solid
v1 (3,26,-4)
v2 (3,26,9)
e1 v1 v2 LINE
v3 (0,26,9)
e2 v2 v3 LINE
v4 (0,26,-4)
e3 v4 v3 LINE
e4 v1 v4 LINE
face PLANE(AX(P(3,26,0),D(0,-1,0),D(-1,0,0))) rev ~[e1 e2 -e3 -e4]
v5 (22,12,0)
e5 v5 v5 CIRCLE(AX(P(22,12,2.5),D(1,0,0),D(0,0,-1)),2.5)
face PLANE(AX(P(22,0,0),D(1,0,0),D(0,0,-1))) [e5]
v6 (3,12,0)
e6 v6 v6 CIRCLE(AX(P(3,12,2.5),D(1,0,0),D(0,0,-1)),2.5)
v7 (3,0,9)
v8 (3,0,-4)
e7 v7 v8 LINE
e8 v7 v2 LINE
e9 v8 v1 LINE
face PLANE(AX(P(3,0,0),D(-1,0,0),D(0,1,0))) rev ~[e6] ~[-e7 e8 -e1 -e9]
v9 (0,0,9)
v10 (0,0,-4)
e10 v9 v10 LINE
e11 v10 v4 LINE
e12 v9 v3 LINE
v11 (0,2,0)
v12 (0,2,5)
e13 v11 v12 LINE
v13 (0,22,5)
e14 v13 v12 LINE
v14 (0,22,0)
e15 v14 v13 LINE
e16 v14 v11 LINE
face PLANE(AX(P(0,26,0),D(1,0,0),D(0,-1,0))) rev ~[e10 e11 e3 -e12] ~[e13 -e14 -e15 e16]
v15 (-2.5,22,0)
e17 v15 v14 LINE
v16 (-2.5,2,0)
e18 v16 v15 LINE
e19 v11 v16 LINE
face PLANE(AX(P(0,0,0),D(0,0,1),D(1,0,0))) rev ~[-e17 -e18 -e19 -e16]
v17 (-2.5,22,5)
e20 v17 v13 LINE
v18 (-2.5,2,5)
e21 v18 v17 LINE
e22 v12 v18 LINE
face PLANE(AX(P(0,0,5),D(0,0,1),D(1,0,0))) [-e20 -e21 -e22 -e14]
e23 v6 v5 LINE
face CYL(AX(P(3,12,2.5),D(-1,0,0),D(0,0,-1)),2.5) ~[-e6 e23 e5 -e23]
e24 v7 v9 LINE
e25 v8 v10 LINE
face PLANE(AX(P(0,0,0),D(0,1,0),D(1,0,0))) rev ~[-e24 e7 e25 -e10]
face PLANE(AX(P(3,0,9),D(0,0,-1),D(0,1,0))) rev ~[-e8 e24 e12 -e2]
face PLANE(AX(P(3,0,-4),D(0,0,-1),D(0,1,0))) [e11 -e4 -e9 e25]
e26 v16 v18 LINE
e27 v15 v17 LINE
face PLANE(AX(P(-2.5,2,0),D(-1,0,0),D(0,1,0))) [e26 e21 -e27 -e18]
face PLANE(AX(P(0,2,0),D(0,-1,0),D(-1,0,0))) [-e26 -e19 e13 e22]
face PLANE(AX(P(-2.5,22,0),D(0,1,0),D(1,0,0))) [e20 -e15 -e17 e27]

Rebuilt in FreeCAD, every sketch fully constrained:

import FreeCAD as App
import Part
import Sketcher

V = App.Vector
Q = App.Units.Quantity


def add_polygon(sketch, points):
    """Adds a closed chain of lines whose ends are joined by coincident constraints."""
    first, n = sketch.GeometryCount, len(points)
    for a, b in zip(points, points[1:] + points[:1]):
        sketch.addGeometry(Part.LineSegment(App.Vector(*a, 0), App.Vector(*b, 0)), False)
    for i in range(n):
        sketch.addConstraint(Sketcher.Constraint("Coincident", first + i, 2, first + (i + 1) % n, 1))

doc = App.newDocument("Part")
body = doc.addObject("PartDesign::Body", "Body")

sketch1 = body.newObject("Sketcher::SketchObject", "Sketch")
sketch1.AttachmentSupport = (doc.getObject("XY_Plane"), [""])
sketch1.MapMode = "FlatFace"
add_polygon(sketch1, [(0, 2), (0, 0), (3, 0), (3, 26), (0, 26), (0, 22), (-2.5, 22), (-2.5, 2)])
sketch1.addConstraint(Sketcher.Constraint("Vertical", 0))
sketch1.addConstraint(Sketcher.Constraint("Horizontal", 1))
sketch1.addConstraint(Sketcher.Constraint("Vertical", 2))
sketch1.addConstraint(Sketcher.Constraint("Horizontal", 3))
sketch1.addConstraint(Sketcher.Constraint("Vertical", 4))
sketch1.addConstraint(Sketcher.Constraint("Horizontal", 5))
sketch1.addConstraint(Sketcher.Constraint("Vertical", 6))
sketch1.addConstraint(Sketcher.Constraint("Horizontal", 7))
sketch1.addConstraint(Sketcher.Constraint("Coincident", 0, 2, -1, 1))
sketch1.addConstraint(Sketcher.Constraint("PointOnObject", 3, 2, -2))
sketch1.addConstraint(Sketcher.Constraint("DistanceX", 1, 1, 1, 2, Q("3 mm")))
sketch1.addConstraint(Sketcher.Constraint("DistanceY", 0, 2, 0, 1, Q("2 mm")))
sketch1.addConstraint(Sketcher.Constraint("DistanceY", 2, 1, 2, 2, Q("26 mm")))
sketch1.addConstraint(Sketcher.Constraint("DistanceY", 6, 2, 6, 1, Q("20 mm")))
sketch1.addConstraint(Sketcher.Constraint("DistanceX", 5, 2, 5, 1, Q("2.5 mm")))
pad1 = body.newObject("PartDesign::Pad", "Pad")
pad1.Profile = sketch1
pad1.Length = 5

sketch2 = body.newObject("Sketcher::SketchObject", "Sketch001")
sketch2.AttachmentSupport = (doc.getObject("YZ_Plane"), [""])
sketch2.MapMode = "FlatFace"
sketch2.AttachmentOffset = App.Placement(V(0, 0, 3), App.Rotation())
sketch2.addGeometry(Part.Circle(V(12, 2.5, 0), V(0, 0, 1), 2.5), False)
sketch2.addConstraint(Sketcher.Constraint("Diameter", 0, Q("5 mm")))
sketch2.addConstraint(Sketcher.Constraint("DistanceX", -1, 1, 0, 3, Q("12 mm")))
sketch2.addConstraint(Sketcher.Constraint("DistanceY", -1, 1, 0, 3, Q("2.5 mm")))
pad2 = body.newObject("PartDesign::Pad", "Pad001")
pad2.Profile = sketch2
pad2.Length = 19

sketch3 = body.newObject("Sketcher::SketchObject", "Sketch002")
sketch3.AttachmentSupport = (doc.getObject("YZ_Plane"), [""])
sketch3.MapMode = "FlatFace"
sketch3.AttachmentOffset = App.Placement(V(0, 0, 3), App.Rotation())
add_polygon(sketch3, [(26, 0), (0, 0), (0, -4), (26, -4)])
add_polygon(sketch3, [(0, 9), (0, 5), (26, 5), (26, 9)])
sketch3.addConstraint(Sketcher.Constraint("Horizontal", 0))
sketch3.addConstraint(Sketcher.Constraint("Vertical", 1))
sketch3.addConstraint(Sketcher.Constraint("Horizontal", 2))
sketch3.addConstraint(Sketcher.Constraint("Vertical", 3))
sketch3.addConstraint(Sketcher.Constraint("Vertical", 4))
sketch3.addConstraint(Sketcher.Constraint("Horizontal", 5))
sketch3.addConstraint(Sketcher.Constraint("Vertical", 6))
sketch3.addConstraint(Sketcher.Constraint("Horizontal", 7))
sketch3.addConstraint(Sketcher.Constraint("Coincident", 0, 2, -1, 1))
sketch3.addConstraint(Sketcher.Constraint("PointOnObject", 4, 2, -2))
sketch3.addConstraint(Sketcher.Constraint("Vertical", 3, 2, 5, 2))
sketch3.addConstraint(Sketcher.Constraint("Equal", 3, 4))
sketch3.addConstraint(Sketcher.Constraint("DistanceY", 1, 2, 1, 1, Q("4 mm")))
sketch3.addConstraint(Sketcher.Constraint("DistanceX", 0, 2, 0, 1, Q("26 mm")))
sketch3.addConstraint(Sketcher.Constraint("DistanceY", -1, 1, 4, 2, Q("5 mm")))
pad3 = body.newObject("PartDesign::Pad", "Pad002")
pad3.Profile = sketch3
pad3.Length = 3
pad3.Reversed = True

doc.recompute()
